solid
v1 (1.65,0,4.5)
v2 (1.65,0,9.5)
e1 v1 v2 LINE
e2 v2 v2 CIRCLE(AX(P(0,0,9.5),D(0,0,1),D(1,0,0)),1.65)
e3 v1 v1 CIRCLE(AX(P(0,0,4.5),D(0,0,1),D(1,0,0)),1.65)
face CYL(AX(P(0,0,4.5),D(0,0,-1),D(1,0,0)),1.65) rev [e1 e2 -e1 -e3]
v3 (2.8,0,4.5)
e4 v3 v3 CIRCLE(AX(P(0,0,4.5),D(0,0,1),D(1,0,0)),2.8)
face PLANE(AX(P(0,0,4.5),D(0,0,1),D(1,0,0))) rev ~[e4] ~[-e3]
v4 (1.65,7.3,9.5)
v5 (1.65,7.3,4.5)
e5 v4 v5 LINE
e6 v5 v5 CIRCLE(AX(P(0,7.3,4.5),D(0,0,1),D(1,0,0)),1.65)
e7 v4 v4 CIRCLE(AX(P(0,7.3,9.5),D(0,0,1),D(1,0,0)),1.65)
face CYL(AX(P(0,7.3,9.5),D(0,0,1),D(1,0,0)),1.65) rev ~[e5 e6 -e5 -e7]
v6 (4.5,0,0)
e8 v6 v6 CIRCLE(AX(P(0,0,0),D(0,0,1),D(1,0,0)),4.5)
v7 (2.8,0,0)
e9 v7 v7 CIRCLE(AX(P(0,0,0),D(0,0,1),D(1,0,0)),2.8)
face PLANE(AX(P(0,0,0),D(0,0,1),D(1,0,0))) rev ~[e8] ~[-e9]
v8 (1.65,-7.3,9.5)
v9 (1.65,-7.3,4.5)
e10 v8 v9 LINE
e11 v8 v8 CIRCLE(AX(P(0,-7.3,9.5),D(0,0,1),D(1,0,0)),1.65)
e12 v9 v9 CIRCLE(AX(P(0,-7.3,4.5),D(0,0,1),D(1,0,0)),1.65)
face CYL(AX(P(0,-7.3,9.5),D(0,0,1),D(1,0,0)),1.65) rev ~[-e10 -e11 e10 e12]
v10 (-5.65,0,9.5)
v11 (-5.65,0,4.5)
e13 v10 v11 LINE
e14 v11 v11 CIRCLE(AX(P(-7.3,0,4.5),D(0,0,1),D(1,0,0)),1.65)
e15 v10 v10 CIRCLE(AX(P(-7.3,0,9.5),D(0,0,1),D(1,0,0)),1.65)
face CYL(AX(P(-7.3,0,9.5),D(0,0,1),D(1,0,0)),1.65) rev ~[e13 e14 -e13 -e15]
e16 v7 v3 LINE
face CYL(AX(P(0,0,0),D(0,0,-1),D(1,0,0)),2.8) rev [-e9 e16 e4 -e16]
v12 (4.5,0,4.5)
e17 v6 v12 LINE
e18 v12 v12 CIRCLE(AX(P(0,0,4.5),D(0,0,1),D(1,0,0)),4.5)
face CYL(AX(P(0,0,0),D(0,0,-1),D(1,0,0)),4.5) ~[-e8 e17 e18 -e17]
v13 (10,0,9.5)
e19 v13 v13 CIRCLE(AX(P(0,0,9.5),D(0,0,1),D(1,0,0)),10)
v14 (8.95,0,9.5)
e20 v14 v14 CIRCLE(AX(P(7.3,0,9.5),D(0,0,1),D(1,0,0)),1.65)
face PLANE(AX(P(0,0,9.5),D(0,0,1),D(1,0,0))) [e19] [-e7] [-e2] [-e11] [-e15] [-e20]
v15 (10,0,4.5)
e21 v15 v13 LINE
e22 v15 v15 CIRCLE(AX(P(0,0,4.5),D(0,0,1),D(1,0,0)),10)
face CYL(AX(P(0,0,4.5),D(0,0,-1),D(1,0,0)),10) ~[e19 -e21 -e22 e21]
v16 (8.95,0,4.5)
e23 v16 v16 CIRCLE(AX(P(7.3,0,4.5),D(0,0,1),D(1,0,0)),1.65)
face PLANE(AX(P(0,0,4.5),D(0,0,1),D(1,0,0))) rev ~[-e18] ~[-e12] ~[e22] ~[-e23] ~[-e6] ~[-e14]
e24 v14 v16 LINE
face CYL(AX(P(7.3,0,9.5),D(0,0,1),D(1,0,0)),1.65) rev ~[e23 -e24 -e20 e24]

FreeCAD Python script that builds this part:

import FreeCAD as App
import Part
import Sketcher
from FreeCAD import Vector

doc = App.newDocument("Part")
body = doc.addObject("PartDesign::Body", "Body")

sketch1 = body.newObject("Sketcher::SketchObject", "Sketch")
sketch1.AttachmentSupport = (doc.getObject("XY_Plane"), [""])
sketch1.MapMode = "FlatFace"
sketch1.addGeometry(Part.Circle(Vector(0, 0, 0), Vector(0, 0, 1), 4.5), False)
sketch1.addGeometry(Part.Circle(Vector(0, 0, 0), Vector(0, 0, 1), 2.8), False)
sketch1.addConstraint(Sketcher.Constraint("Coincident", 0, 3, -1, 1))
sketch1.addConstraint(Sketcher.Constraint("Coincident", 1, 3, -1, 1))
sketch1.addConstraint(Sketcher.Constraint("Diameter", 0, 9.0))
sketch1.addConstraint(Sketcher.Constraint("Diameter", 1, 5.6))
pad1 = body.newObject("PartDesign::Pad", "Pad")
pad1.Profile = sketch1
pad1.Length = 4.5

sketch2 = body.newObject("Sketcher::SketchObject", "Sketch001")
sketch2.AttachmentSupport = (doc.getObject("XY_Plane"), [""])
sketch2.MapMode = "FlatFace"
sketch2.AttachmentOffset = App.Placement(Vector(0, 0, 4.5), App.Rotation())
sketch2.addGeometry(Part.Circle(Vector(0, 0, 0), Vector(0, 0, 1), 10), False)
sketch2.addGeometry(Part.Circle(Vector(0, 0, 0), Vector(0, 0, 1), 1.6), False)
sketch2.addConstraint(Sketcher.Constraint("Coincident", 0, 3, -1, 1))
sketch2.addConstraint(Sketcher.Constraint("Coincident", 1, 3, -1, 1))
sketch2.addConstraint(Sketcher.Constraint("Diameter", 0, 20.0))
sketch2.addConstraint(Sketcher.Constraint("Diameter", 1, 3.3))
pad2 = body.newObject("PartDesign::Pad", "Pad001")
pad2.Profile = sketch2
pad2.Length = 5

sketch3 = body.newObject("Sketcher::SketchObject", "Sketch002")
sketch3.AttachmentSupport = (doc.getObject("XY_Plane"), [""])
sketch3.MapMode = "FlatFace"
sketch3.AttachmentOffset = App.Placement(Vector(0, 0, 9.5), App.Rotation())
sketch3.addGeometry(Part.Circle(Vector(-7.3, 0, 0), Vector(0, 0, 1), 1.6), False)
sketch3.addGeometry(Part.Circle(Vector(0, -7.3, 0), Vector(0, 0, 1), 1.6), False)
sketch3.addGeometry(Part.Circle(Vector(0, 7.3, 0), Vector(0, 0, 1), 1.6), False)
sketch3.addGeometry(Part.Circle(Vector(7.3, 0, 0), Vector(0, 0, 1), 1.6), False)
sketch3.addConstraint(Sketcher.Constraint("Equal", 0, 1))
sketch3.addConstraint(Sketcher.Constraint("Equal", 1, 2))
sketch3.addConstraint(Sketcher.Constraint("Equal", 2, 3))
sketch3.addConstraint(Sketcher.Constraint("Symmetric", 1, 3, 2, 3, -1, 1))
sketch3.addConstraint(Sketcher.Constraint("Symmetric", 0, 3, 3, 3, -1, 1))
sketch3.addConstraint(Sketcher.Constraint("PointOnObject", 0, 3, -1))
sketch3.addConstraint(Sketcher.Constraint("PointOnObject", 1, 3, -2))
sketch3.addConstraint(Sketcher.Constraint("Diameter", 0, 3.3))
sketch3.addConstraint(Sketcher.Constraint("DistanceX", 0, 3, -1, 1, 7.3))
sketch3.addConstraint(Sketcher.Constraint("DistanceY", 1, 3, -1, 1, 7.3))
pocket1 = body.newObject("PartDesign::Pocket", "Pocket")
pocket1.Profile = sketch3
pocket1.Type = "ThroughAll"

doc.recompute()
